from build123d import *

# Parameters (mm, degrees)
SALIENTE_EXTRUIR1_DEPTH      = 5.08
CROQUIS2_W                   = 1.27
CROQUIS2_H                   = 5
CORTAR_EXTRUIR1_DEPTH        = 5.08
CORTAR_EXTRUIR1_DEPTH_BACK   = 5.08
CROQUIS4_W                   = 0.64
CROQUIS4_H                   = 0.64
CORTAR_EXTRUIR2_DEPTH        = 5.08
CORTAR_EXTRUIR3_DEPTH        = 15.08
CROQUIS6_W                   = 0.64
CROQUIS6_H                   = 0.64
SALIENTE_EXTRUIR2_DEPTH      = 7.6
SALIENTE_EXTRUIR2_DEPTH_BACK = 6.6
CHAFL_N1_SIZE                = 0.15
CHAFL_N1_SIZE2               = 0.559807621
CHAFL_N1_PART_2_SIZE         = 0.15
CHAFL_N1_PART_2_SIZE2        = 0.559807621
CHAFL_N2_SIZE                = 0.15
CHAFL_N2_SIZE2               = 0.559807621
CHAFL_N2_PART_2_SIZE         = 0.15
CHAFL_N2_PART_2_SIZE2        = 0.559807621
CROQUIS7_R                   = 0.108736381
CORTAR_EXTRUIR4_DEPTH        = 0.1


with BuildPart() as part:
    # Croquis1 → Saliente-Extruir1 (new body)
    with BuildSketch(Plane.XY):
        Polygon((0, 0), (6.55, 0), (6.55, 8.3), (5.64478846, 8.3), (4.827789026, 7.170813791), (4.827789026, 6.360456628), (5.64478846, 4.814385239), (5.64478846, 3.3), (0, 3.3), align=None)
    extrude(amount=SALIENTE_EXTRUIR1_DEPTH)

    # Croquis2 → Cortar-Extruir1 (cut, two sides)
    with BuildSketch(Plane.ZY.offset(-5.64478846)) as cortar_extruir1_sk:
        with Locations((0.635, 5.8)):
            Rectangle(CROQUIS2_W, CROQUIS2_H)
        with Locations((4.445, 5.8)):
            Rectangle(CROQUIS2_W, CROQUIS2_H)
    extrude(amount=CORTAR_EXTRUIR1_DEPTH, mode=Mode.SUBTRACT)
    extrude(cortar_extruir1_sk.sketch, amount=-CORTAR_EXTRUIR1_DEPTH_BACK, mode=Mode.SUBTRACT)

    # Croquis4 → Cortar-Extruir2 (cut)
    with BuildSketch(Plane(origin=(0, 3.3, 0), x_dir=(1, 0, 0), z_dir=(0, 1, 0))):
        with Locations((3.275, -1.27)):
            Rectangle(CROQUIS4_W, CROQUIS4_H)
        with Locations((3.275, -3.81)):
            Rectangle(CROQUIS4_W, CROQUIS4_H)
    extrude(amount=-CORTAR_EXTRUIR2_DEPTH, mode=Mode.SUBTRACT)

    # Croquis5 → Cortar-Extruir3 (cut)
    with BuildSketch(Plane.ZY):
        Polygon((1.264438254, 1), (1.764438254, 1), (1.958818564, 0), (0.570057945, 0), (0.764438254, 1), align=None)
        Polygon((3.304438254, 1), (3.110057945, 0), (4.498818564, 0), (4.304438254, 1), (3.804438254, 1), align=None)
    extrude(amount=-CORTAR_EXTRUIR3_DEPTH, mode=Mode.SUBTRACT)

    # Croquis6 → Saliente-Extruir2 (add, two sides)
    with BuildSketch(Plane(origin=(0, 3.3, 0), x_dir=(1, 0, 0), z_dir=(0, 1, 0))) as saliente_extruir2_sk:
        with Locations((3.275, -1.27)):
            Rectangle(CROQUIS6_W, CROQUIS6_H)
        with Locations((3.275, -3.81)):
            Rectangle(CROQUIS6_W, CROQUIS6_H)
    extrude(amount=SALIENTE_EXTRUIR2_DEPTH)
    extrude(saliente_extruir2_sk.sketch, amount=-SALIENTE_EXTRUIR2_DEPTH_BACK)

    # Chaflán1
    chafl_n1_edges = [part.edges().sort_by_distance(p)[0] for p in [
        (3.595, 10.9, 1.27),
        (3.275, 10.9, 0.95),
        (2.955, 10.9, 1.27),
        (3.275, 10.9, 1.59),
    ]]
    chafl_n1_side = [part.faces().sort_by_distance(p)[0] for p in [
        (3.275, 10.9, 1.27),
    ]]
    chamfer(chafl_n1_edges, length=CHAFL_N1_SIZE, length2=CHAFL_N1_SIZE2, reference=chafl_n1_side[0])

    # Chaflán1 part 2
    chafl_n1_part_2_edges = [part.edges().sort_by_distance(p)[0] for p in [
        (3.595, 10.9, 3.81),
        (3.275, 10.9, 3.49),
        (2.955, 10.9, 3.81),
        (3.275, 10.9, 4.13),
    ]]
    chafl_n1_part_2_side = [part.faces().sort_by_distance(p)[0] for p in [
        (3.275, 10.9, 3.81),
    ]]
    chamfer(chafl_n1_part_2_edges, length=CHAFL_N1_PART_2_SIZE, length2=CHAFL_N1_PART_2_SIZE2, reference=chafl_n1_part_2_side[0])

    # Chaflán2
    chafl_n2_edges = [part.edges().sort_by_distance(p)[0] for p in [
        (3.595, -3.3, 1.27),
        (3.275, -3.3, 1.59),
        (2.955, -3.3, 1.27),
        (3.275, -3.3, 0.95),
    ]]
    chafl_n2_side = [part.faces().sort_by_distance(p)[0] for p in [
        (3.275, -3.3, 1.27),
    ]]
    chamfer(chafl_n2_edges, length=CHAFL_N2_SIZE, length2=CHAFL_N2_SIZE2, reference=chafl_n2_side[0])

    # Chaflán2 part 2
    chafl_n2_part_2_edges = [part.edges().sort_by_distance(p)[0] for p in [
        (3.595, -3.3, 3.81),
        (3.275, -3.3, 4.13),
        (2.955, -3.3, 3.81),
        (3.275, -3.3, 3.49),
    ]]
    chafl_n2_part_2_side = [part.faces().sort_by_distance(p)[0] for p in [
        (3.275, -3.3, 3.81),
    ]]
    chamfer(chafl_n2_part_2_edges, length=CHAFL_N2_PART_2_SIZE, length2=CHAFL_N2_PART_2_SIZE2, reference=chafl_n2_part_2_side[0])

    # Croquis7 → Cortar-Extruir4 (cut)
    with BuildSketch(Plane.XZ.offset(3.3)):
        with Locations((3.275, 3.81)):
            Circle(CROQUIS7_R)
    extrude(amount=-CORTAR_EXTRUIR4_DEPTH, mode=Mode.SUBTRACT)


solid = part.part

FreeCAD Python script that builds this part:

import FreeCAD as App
import Part
import Sketcher
Q = App.Units.Quantity


def edges_at(feature, points):
    """Names of the edges that pass closest to the given points."""
    edges = feature.Shape.Edges
    near = lambda p: min(range(len(edges)), key=lambda i: edges[i].distToShape(Part.Vertex(*p))[0])
    return sorted({f"Edge{near(p) + 1}" for p in points})


def add_polygon(sketch, points):
    """Adds a closed chain of lines whose ends are joined by coincident constraints."""
    first, n = sketch.GeometryCount, len(points)
    for a, b in zip(points, points[1:] + points[:1]):
        sketch.addGeometry(Part.LineSegment(App.Vector(*a, 0), App.Vector(*b, 0)), False)
    for i in range(n):
        sketch.addConstraint(Sketcher.Constraint("Coincident", first + i, 2, first + (i + 1) % n, 1))

doc = App.newDocument("Part")
body = doc.addObject("PartDesign::Body", "Body")

# Sketch on XY plane
sketch1 = body.newObject("Sketcher::SketchObject", "Sketch")
sketch1.AttachmentSupport = (doc.getObject("XY_Plane"), [""])
sketch1.MapMode = "FlatFace"
add_polygon(sketch1, [(0, 0), (6.5, 0), (6.5, 8.3), (5.6, 8.3), (4.8, 7.2), (4.8, 6.4), (5.6, 4.8), (5.6, 3.3), (0, 3.3)])  # lines 0-8
sketch1.addConstraint(Sketcher.Constraint("Horizontal", 0))
sketch1.addConstraint(Sketcher.Constraint("Vertical", 1))
sketch1.addConstraint(Sketcher.Constraint("Horizontal", 2))
sketch1.addConstraint(Sketcher.Constraint("Vertical", 4))
sketch1.addConstraint(Sketcher.Constraint("Vertical", 6))
sketch1.addConstraint(Sketcher.Constraint("Horizontal", 7))
sketch1.addConstraint(Sketcher.Constraint("Vertical", 8))
sketch1.addConstraint(Sketcher.Constraint("Coincident", 8, 2, -1, 1))
sketch1.addConstraint(Sketcher.Constraint("Vertical", 2, 2, 5, 2))
sketch1.addConstraint(Sketcher.Constraint("DistanceY", 1, 1, 1, 2, Q("8.3 mm")))
sketch1.addConstraint(Sketcher.Constraint("DistanceY", 8, 2, 8, 1, Q("3.3 mm")))
sketch1.addConstraint(Sketcher.Constraint("DistanceX", 0, 1, 0, 2, Q("6.55 mm")))
sketch1.addConstraint(Sketcher.Constraint("DistanceX", 3, 2, 2, 2, Q("0.816999 mm")))
sketch1.addConstraint(Sketcher.Constraint("DistanceX", 2, 2, 2, 1, Q("0.905212 mm")))
sketch1.addConstraint(Sketcher.Constraint("DistanceY", 4, 2, 4, 1, Q("0.810357 mm")))
sketch1.addConstraint(Sketcher.Constraint("DistanceY", 6, 2, 6, 1, Q("1.514385 mm")))
sketch1.addConstraint(Sketcher.Constraint("DistanceY", 5, 2, 4, 2, Q("1.546071 mm")))
pad1 = body.newObject("PartDesign::Pad", "Pad")
pad1.Profile = sketch1
pad1.Length = 5.08

# Sketch on YZ plane
sketch2 = body.newObject("Sketcher::SketchObject", "Sketch001")
sketch2.AttachmentSupport = (doc.getObject("YZ_Plane"), [""])
sketch2.MapMode = "FlatFace"
sketch2.AttachmentOffset = App.Placement(App.Vector(0, 0, 5.644788), App.Rotation())
add_polygon(sketch2, [(8.3, 0), (3.3, 0), (3.3, 1.3), (8.3, 1.3)])  # lines 0-3
add_polygon(sketch2, [(8.3, 3.8), (3.3, 3.8), (3.3, 5.1), (8.3, 5.1)])  # lines 4-7
sketch2.addConstraint(Sketcher.Constraint("Horizontal", 0))
sketch2.addConstraint(Sketcher.Constraint("Vertical", 1))
sketch2.addConstraint(Sketcher.Constraint("Horizontal", 2))
sketch2.addConstraint(Sketcher.Constraint("Vertical", 3))
sketch2.addConstraint(Sketcher.Constraint("Horizontal", 4))
sketch2.addConstraint(Sketcher.Constraint("Vertical", 5))
sketch2.addConstraint(Sketcher.Constraint("Horizontal", 6))
sketch2.addConstraint(Sketcher.Constraint("Vertical", 7))
sketch2.addConstraint(Sketcher.Constraint("PointOnObject", 0, 2, -1))
sketch2.addConstraint(Sketcher.Constraint("Vertical", 1, 2, 4, 2))
sketch2.addConstraint(Sketcher.Constraint("Vertical", 3, 2, 6, 2))
sketch2.addConstraint(Sketcher.Constraint("Equal", 3, 5))
sketch2.addConstraint(Sketcher.Constraint("DistanceX", 0, 2, 0, 1, Q("5 mm")))
sketch2.addConstraint(Sketcher.Constraint("DistanceY", 1, 1, 1, 2, Q("1.27 mm")))
sketch2.addConstraint(Sketcher.Constraint("DistanceX", -1, 1, 0, 2, Q("3.3 mm")))
sketch2.addConstraint(Sketcher.Constraint("DistanceY", -1, 1, 4, 2, Q("3.81 mm")))
pocket1 = body.newObject("PartDesign::Pocket", "Pocket")
pocket1.Profile = sketch2
pocket1.Type = "ThroughAll"
pocket1.Midplane = True

# Sketch on XZ plane
sketch3 = body.newObject("Sketcher::SketchObject", "Sketch002")
sketch3.AttachmentSupport = (doc.getObject("XZ_Plane"), [""])
sketch3.MapMode = "FlatFace"
sketch3.AttachmentOffset = App.Placement(App.Vector(0, 0, -3.3), App.Rotation())
add_polygon(sketch3, [(3, 0.9), (3, 1.6), (3.6, 1.6), (3.6, 0.9)])  # lines 0-3
add_polygon(sketch3, [(3, 3.5), (3, 4.1), (3.6, 4.1), (3.6, 3.5)])  # lines 4-7
sketch3.addConstraint(Sketcher.Constraint("Vertical", 0))
sketch3.addConstraint(Sketcher.Constraint("Horizontal", 1))
sketch3.addConstraint(Sketcher.Constraint("Vertical", 2))
sketch3.addConstraint(Sketcher.Constraint("Horizontal", 3))
sketch3.addConstraint(Sketcher.Constraint("Vertical", 4))
sketch3.addConstraint(Sketcher.Constraint("Horizontal", 5))
sketch3.addConstraint(Sketcher.Constraint("Vertical", 6))
sketch3.addConstraint(Sketcher.Constraint("Horizontal", 7))
sketch3.addConstraint(Sketcher.Constraint("Vertical", 3, 2, 4, 2))
sketch3.addConstraint(Sketcher.Constraint("Vertical", 2, 2, 5, 2))
sketch3.addConstraint(Sketcher.Constraint("Equal", 7, 0))
sketch3.addConstraint(Sketcher.Constraint("Equal", 2, 4))
sketch3.addConstraint(Sketcher.Constraint("DistanceX", 1, 1, 1, 2, Q("0.64 mm")))
sketch3.addConstraint(Sketcher.Constraint("DistanceY", 1, 2, 6, 2, Q("1.9 mm")))
sketch3.addConstraint(Sketcher.Constraint("DistanceY", -1, 1, 0, 2, Q("1.59 mm")))
sketch3.addConstraint(Sketcher.Constraint("DistanceX", -1, 1, 0, 2, Q("2.955 mm")))
pocket2 = body.newObject("PartDesign::Pocket", "Pocket001")
pocket2.Profile = sketch3
pocket2.Length = 5.08
pocket2.Reversed = True

# Sketch on YZ plane
sketch4 = body.newObject("Sketcher::SketchObject", "Sketch003")
sketch4.AttachmentSupport = (doc.getObject("YZ_Plane"), [""])
sketch4.MapMode = "FlatFace"
add_polygon(sketch4, [(1, 1.8), (1, 0.8), (0, 0.6), (0, 2)])  # lines 0-3
add_polygon(sketch4, [(1, 3.3), (0, 3.1), (0, 4.5), (1, 4.3)])  # lines 4-7
sketch4.addConstraint(Sketcher.Constraint("Vertical", 0))
sketch4.addConstraint(Sketcher.Constraint("Vertical", 2))
sketch4.addConstraint(Sketcher.Constraint("Vertical", 5))
sketch4.addConstraint(Sketcher.Constraint("Vertical", 7))
sketch4.addConstraint(Sketcher.Constraint("PointOnObject", 1, 2, -2))
sketch4.addConstraint(Sketcher.Constraint("PointOnObject", 4, 2, -2))
sketch4.addConstraint(Sketcher.Constraint("Parallel", 1, 4))
sketch4.addConstraint(Sketcher.Constraint("Parallel", 3, 6))
sketch4.addConstraint(Sketcher.Constraint("Vertical", 3, 2, 6, 2))
sketch4.addConstraint(Sketcher.Constraint("Equal", 2, 5))
sketch4.addConstraint(Sketcher.Constraint("Equal", 1, 3))
sketch4.addConstraint(Sketcher.Constraint("DistanceY", 0, 2, 0, 1, Q("1 mm")))
sketch4.addConstraint(Sketcher.Constraint("Angle", 1, Q("-169 deg")))
sketch4.addConstraint(Sketcher.Constraint("DistanceX", -1, 1, 0, 2, Q("1 mm")))
sketch4.addConstraint(Sketcher.Constraint("DistanceY", 1, 2, 4, 2, Q("2.54 mm")))
sketch4.addConstraint(Sketcher.Constraint("DistanceY", -1, 1, 0, 2, Q("0.764438 mm")))
pocket3 = body.newObject("PartDesign::Pocket", "Pocket002")
pocket3.Profile = sketch4
pocket3.Length = 15.08
pocket3.Reversed = True

# Sketch on XZ plane
sketch5 = body.newObject("Sketcher::SketchObject", "Sketch004")
sketch5.AttachmentSupport = (doc.getObject("XZ_Plane"), [""])
sketch5.MapMode = "FlatFace"
sketch5.AttachmentOffset = App.Placement(App.Vector(0, 0, -3.3), App.Rotation())
add_polygon(sketch5, [(3, 0.9), (3, 1.6), (3.6, 1.6), (3.6, 0.9)])  # lines 0-3
add_polygon(sketch5, [(3, 3.5), (3, 4.1), (3.6, 4.1), (3.6, 3.5)])  # lines 4-7
sketch5.addConstraint(Sketcher.Constraint("Vertical", 0))
sketch5.addConstraint(Sketcher.Constraint("Horizontal", 1))
sketch5.addConstraint(Sketcher.Constraint("Vertical", 2))
sketch5.addConstraint(Sketcher.Constraint("Horizontal", 3))
sketch5.addConstraint(Sketcher.Constraint("Vertical", 4))
sketch5.addConstraint(Sketcher.Constraint("Horizontal", 5))
sketch5.addConstraint(Sketcher.Constraint("Vertical", 6))
sketch5.addConstraint(Sketcher.Constraint("Horizontal", 7))
sketch5.addConstraint(Sketcher.Constraint("Vertical", 3, 2, 4, 2))
sketch5.addConstraint(Sketcher.Constraint("Vertical", 2, 2, 5, 2))
sketch5.addConstraint(Sketcher.Constraint("Equal", 7, 0))
sketch5.addConstraint(Sketcher.Constraint("Equal", 2, 4))
sketch5.addConstraint(Sketcher.Constraint("DistanceX", 1, 1, 1, 2, Q("0.64 mm")))
sketch5.addConstraint(Sketcher.Constraint("DistanceY", 1, 2, 6, 2, Q("1.9 mm")))
sketch5.addConstraint(Sketcher.Constraint("DistanceY", -1, 1, 0, 2, Q("1.59 mm")))
sketch5.addConstraint(Sketcher.Constraint("DistanceX", -1, 1, 0, 2, Q("2.955 mm")))
pad2 = body.newObject("PartDesign::Pad", "Pad001")
pad2.Profile = sketch5
pad2.Type = "TwoLengths"
pad2.Length = 7.6
pad2.Length2 = 6.6
pad2.Reversed = True
doc.recompute()

chamfer = body.newObject("PartDesign::Chamfer", "Chamfer")
chamfer.Base = (pad2, edges_at(pad2, [
    (3.595, 10.9, 1.27),
    (3.275, 10.9, 0.95),
    (2.955, 10.9, 1.27),
    (3.275, 10.9, 1.59),
]))
chamfer.ChamferType = "Two distances"
chamfer.Size = 0.15
chamfer.Size2 = 0.559808
chamfer.FlipDirection = True
doc.recompute()

chamfer2 = body.newObject("PartDesign::Chamfer", "Chamfer001")
chamfer2.Base = (chamfer, edges_at(chamfer, [
    (3.595, 10.9, 3.81),
    (3.275, 10.9, 3.49),
    (2.955, 10.9, 3.81),
    (3.275, 10.9, 4.13),
]))
chamfer2.ChamferType = "Two distances"
chamfer2.Size = 0.15
chamfer2.Size2 = 0.559808
chamfer2.FlipDirection = True
doc.recompute()

chamfer3 = body.newObject("PartDesign::Chamfer", "Chamfer002")
chamfer3.Base = (chamfer2, edges_at(chamfer2, [
    (3.595, -3.3, 1.27),
    (3.275, -3.3, 1.59),
    (2.955, -3.3, 1.27),
    (3.275, -3.3, 0.95),
]))
chamfer3.ChamferType = "Two distances"
chamfer3.Size = 0.15
chamfer3.Size2 = 0.559808
chamfer3.FlipDirection = True
doc.recompute()

chamfer4 = body.newObject("PartDesign::Chamfer", "Chamfer003")
chamfer4.Base = (chamfer3, edges_at(chamfer3, [
    (3.595, -3.3, 3.81),
    (3.275, -3.3, 4.13),
    (2.955, -3.3, 3.81),
    (3.275, -3.3, 3.49),
]))
chamfer4.ChamferType = "Two distances"
chamfer4.Size = 0.15
chamfer4.Size2 = 0.559808
chamfer4.FlipDirection = True

# Sketch on XZ plane
sketch6 = body.newObject("Sketcher::SketchObject", "Sketch005")
sketch6.AttachmentSupport = (doc.getObject("XZ_Plane"), [""])
sketch6.MapMode = "FlatFace"
sketch6.AttachmentOffset = App.Placement(App.Vector(0, 0, 3.3), App.Rotation())
sketch6.addGeometry(Part.Circle(App.Vector(3.27, 3.81, 0), App.Vector(0, 0, 1), 0.11), False)
sketch6.addConstraint(Sketcher.Constraint("DistanceY", -1, 1, 0, 3, Q("3.81 mm")))
sketch6.addConstraint(Sketcher.Constraint("Diameter", 0, Q("0.217473 mm")))
sketch6.addConstraint(Sketcher.Constraint("DistanceX", -1, 1, 0, 3, Q("3.275 mm")))
pocket4 = body.newObject("PartDesign::Pocket", "Pocket003")
pocket4.Profile = sketch6
pocket4.Length = 0.1

doc.recompute()
